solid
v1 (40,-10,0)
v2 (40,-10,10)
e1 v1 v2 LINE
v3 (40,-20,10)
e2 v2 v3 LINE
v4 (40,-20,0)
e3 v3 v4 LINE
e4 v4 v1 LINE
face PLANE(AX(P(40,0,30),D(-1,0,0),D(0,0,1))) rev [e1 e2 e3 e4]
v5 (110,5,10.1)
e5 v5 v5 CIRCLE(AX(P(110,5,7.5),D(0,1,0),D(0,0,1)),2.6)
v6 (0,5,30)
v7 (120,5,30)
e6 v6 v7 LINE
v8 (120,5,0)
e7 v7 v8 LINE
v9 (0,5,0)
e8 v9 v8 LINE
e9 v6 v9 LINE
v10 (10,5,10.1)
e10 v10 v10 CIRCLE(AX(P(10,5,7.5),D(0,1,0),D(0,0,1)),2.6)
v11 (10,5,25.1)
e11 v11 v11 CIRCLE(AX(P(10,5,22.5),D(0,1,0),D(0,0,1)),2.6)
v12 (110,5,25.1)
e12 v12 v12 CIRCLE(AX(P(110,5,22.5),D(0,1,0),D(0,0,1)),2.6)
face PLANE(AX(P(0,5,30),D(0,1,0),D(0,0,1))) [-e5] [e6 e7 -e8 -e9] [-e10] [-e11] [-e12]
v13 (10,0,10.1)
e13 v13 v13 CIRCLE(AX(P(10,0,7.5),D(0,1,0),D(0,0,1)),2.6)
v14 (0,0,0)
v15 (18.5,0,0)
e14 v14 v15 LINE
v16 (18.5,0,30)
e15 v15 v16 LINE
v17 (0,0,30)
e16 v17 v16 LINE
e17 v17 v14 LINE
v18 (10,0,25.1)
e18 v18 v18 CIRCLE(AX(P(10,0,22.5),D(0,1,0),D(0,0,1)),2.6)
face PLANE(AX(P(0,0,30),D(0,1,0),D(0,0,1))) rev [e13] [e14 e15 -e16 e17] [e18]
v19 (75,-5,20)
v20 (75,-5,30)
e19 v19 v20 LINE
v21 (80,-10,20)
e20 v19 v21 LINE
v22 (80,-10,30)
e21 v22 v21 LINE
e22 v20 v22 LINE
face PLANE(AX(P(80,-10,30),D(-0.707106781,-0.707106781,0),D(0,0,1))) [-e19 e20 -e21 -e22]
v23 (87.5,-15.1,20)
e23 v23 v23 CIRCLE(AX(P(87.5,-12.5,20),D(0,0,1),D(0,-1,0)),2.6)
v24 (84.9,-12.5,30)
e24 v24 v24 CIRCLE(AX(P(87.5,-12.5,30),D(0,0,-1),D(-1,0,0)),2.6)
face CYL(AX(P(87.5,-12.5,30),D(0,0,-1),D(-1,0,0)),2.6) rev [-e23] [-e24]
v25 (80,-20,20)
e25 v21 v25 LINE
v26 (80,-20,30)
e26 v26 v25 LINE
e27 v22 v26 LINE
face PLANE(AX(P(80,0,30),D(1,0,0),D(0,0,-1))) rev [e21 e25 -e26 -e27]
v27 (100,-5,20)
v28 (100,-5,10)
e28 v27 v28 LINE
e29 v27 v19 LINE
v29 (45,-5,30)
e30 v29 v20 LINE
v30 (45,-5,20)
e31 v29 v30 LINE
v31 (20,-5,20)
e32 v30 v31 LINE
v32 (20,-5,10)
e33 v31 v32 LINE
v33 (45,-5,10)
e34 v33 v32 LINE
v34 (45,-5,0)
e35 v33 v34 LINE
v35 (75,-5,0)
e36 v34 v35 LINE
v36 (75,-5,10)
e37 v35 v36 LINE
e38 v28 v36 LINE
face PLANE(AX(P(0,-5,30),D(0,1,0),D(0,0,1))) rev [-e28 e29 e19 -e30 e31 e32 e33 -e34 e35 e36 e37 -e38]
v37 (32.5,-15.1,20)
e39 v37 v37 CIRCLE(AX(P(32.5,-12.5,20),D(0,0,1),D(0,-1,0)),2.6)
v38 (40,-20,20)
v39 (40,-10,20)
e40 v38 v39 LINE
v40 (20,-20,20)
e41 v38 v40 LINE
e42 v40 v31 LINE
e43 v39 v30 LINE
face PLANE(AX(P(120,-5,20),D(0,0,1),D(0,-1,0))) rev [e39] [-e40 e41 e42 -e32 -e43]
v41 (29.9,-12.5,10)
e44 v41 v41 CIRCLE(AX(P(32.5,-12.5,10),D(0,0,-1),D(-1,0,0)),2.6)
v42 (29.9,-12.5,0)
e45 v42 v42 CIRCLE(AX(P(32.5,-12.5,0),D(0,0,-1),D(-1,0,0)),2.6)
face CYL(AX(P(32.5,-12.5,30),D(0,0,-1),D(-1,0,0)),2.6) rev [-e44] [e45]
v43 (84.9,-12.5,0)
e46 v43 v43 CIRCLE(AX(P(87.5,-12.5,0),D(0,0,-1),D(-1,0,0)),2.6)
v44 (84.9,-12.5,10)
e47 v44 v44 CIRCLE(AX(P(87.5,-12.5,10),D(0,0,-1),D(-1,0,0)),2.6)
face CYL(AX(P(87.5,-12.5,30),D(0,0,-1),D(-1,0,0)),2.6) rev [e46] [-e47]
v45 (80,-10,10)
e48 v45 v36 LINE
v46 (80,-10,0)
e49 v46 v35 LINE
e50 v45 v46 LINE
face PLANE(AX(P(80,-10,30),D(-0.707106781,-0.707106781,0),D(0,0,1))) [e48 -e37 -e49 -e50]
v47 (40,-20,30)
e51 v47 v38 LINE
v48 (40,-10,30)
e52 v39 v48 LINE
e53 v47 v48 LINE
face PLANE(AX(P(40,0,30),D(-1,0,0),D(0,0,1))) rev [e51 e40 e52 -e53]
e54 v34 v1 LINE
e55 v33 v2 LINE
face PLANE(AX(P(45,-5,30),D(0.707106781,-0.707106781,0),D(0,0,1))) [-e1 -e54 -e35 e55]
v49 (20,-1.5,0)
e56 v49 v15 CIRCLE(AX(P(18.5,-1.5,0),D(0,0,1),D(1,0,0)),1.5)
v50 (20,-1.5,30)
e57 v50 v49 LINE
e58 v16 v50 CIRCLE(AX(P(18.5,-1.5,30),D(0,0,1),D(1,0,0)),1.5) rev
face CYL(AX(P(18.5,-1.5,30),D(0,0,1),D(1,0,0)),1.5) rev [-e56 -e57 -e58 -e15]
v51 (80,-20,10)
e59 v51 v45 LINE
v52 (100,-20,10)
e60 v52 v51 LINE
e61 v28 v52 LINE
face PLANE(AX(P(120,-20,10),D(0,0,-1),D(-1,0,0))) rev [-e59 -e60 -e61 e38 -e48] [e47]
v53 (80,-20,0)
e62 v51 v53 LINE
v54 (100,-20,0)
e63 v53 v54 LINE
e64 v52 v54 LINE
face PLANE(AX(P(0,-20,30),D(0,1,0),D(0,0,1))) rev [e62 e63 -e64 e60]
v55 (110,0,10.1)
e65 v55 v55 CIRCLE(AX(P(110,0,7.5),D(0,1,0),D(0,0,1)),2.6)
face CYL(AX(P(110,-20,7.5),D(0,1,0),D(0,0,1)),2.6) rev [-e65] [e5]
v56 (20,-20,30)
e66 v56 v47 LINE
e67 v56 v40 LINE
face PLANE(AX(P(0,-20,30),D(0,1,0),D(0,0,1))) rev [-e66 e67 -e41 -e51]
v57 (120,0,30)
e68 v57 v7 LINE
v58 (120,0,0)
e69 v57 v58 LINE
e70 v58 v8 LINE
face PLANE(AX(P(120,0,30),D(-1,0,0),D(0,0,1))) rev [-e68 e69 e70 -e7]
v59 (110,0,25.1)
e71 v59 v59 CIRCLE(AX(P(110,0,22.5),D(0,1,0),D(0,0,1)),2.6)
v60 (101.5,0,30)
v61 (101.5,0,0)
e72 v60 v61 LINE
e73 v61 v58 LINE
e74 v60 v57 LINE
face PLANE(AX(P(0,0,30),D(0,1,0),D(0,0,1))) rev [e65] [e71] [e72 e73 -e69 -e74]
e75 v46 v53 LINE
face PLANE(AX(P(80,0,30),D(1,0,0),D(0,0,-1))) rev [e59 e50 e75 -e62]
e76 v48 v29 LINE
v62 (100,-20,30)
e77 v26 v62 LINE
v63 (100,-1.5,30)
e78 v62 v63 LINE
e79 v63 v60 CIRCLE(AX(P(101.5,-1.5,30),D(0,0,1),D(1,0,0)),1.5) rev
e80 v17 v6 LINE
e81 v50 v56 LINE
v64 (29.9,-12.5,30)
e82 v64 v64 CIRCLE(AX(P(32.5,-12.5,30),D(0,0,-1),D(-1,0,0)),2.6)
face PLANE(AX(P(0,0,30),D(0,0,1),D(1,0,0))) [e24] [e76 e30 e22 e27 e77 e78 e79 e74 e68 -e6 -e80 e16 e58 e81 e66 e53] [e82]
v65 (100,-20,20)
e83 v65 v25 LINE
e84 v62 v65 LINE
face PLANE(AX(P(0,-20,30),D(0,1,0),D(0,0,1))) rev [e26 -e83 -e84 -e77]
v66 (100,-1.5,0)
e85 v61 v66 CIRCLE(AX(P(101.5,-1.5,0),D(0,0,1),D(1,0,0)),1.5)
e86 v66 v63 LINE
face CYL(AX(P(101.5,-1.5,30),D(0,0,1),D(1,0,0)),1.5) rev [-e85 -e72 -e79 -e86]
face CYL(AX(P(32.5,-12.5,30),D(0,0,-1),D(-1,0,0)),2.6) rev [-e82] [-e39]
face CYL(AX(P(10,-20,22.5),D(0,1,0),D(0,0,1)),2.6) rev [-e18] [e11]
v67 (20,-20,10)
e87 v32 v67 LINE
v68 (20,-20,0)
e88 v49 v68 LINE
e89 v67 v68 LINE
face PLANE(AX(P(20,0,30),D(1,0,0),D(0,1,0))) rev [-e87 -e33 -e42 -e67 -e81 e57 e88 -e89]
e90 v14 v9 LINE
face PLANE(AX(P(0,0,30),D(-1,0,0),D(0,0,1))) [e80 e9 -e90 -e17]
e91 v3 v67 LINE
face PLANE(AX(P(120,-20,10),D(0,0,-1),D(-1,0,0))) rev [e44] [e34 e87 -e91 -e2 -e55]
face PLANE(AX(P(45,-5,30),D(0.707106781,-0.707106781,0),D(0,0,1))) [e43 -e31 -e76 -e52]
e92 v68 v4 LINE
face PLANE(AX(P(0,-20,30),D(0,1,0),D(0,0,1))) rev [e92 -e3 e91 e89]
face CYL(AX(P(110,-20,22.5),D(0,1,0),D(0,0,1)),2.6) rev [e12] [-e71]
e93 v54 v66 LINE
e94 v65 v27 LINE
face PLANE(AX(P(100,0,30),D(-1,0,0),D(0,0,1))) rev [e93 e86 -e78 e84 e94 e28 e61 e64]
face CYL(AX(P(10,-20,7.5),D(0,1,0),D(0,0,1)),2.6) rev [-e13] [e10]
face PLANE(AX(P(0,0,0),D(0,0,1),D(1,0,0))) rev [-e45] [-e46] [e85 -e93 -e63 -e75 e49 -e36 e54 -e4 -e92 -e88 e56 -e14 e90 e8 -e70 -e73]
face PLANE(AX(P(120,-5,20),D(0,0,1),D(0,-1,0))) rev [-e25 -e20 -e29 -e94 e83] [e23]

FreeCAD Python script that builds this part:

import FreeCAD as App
import Part
import Sketcher


def edges_at(feature, points):
    """Names of the edges that pass closest to the given points."""
    edges = feature.Shape.Edges
    near = lambda p: min(range(len(edges)), key=lambda i: edges[i].distToShape(Part.Vertex(*p))[0])
    return sorted({f"Edge{near(p) + 1}" for p in points})


def add_polygon(sketch, points):
    """Adds a closed chain of lines whose ends are joined by coincident constraints."""
    first, n = sketch.GeometryCount, len(points)
    for a, b in zip(points, points[1:] + points[:1]):
        sketch.addGeometry(Part.LineSegment(App.Vector(*a, 0), App.Vector(*b, 0)), False)
    for i in range(n):
        sketch.addConstraint(Sketcher.Constraint("Coincident", first + i, 2, first + (i + 1) % n, 1))

doc = App.newDocument("Part")
body = doc.addObject("PartDesign::Body", "Body")

# Sketch on XY plane
sketch1 = body.newObject("Sketcher::SketchObject", "Sketch")
sketch1.AttachmentSupport = (doc.getObject("XY_Plane"), [""])
sketch1.MapMode = "FlatFace"
add_polygon(sketch1, [(20, 0), (20, -20), (40, -20), (40, -5), (80, -5), (80, -20), (100, -20), (100, 0), (120, 0), (120, 5), (0, 5), (0, 0)])  # lines 0-11
sketch1.addConstraint(Sketcher.Constraint("Vertical", 0))
sketch1.addConstraint(Sketcher.Constraint("Horizontal", 1))
sketch1.addConstraint(Sketcher.Constraint("Vertical", 2))
sketch1.addConstraint(Sketcher.Constraint("Horizontal", 3))
sketch1.addConstraint(Sketcher.Constraint("Vertical", 4))
sketch1.addConstraint(Sketcher.Constraint("Horizontal", 5))
sketch1.addConstraint(Sketcher.Constraint("Vertical", 6))
sketch1.addConstraint(Sketcher.Constraint("Horizontal", 7))
sketch1.addConstraint(Sketcher.Constraint("Vertical", 8))
sketch1.addConstraint(Sketcher.Constraint("Horizontal", 9))
sketch1.addConstraint(Sketcher.Constraint("Vertical", 10))
sketch1.addConstraint(Sketcher.Constraint("Horizontal", 11))
sketch1.addConstraint(Sketcher.Constraint("Coincident", 10, 2, -1, 1))
sketch1.addConstraint(Sketcher.Constraint("PointOnObject", 6, 2, -1))
sketch1.addConstraint(Sketcher.Constraint("Horizontal", 1, 2, 4, 2))
sketch1.addConstraint(Sketcher.Constraint("Equal", 1, 5))
sketch1.addConstraint(Sketcher.Constraint("Equal", 5, 7))
sketch1.addConstraint(Sketcher.Constraint("Equal", 7, 11))
sketch1.addConstraint(Sketcher.Constraint("Equal", 11, 0))
sketch1.addConstraint(Sketcher.Constraint("DistanceX", 1, 1, 1, 2, 20.0))
sketch1.addConstraint(Sketcher.Constraint("DistanceX", 3, 1, 3, 2, 40.0))
sketch1.addConstraint(Sketcher.Constraint("DistanceY", 2, 1, 2, 2, 15.0))
sketch1.addConstraint(Sketcher.Constraint("DistanceY", 8, 1, 8, 2, 5.0))
pad1 = body.newObject("PartDesign::Pad", "Pad")
pad1.Profile = sketch1
pad1.Length = 30
doc.recompute()

chamfer = body.newObject("PartDesign::Chamfer", "Chamfer")
chamfer.Base = (pad1, edges_at(pad1, [(80, -5, 15), (40, -5, 15)]))
chamfer.Size = 5

# Sketch on XZ plane
sketch2 = body.newObject("Sketcher::SketchObject", "Sketch001")
sketch2.AttachmentSupport = (doc.getObject("XZ_Plane"), [""])
sketch2.MapMode = "FlatFace"
sketch2.AttachmentOffset = App.Placement(App.Vector(0, 0, -5), App.Rotation())
sketch2.addGeometry(Part.Circle(App.Vector(10, 7.5, 0), App.Vector(0, 0, 1), 2.6), False)
sketch2.addGeometry(Part.Circle(App.Vector(10, 22.5, 0), App.Vector(0, 0, 1), 2.6), False)
sketch2.addGeometry(Part.Circle(App.Vector(110, 22.5, 0), App.Vector(0, 0, 1), 2.6), False)
sketch2.addGeometry(Part.Circle(App.Vector(110, 7.5, 0), App.Vector(0, 0, 1), 2.6), False)
sketch2.addConstraint(Sketcher.Constraint("Equal", 0, 1))
sketch2.addConstraint(Sketcher.Constraint("Equal", 1, 2))
sketch2.addConstraint(Sketcher.Constraint("Equal", 2, 3))
sketch2.addConstraint(Sketcher.Constraint("Horizontal", 1, 3, 2, 3))
sketch2.addConstraint(Sketcher.Constraint("Horizontal", 0, 3, 3, 3))
sketch2.addConstraint(Sketcher.Constraint("Vertical", 0, 3, 1, 3))
sketch2.addConstraint(Sketcher.Constraint("Vertical", 2, 3, 3, 3))
sketch2.addConstraint(Sketcher.Constraint("Diameter", 0, 5.2))
sketch2.addConstraint(Sketcher.Constraint("DistanceX", -1, 1, 0, 3, 10.0))
sketch2.addConstraint(Sketcher.Constraint("DistanceX", -1, 1, 2, 3, 110.0))
sketch2.addConstraint(Sketcher.Constraint("DistanceY", 0, 3, 1, 3, 15.0))
sketch2.addConstraint(Sketcher.Constraint("DistanceY", -1, 1, 0, 3, 7.5))
pocket1 = body.newObject("PartDesign::Pocket", "Pocket")
pocket1.Profile = sketch2
pocket1.Type = "ThroughAll"
pocket1.Reversed = True

# Sketch on YZ plane
sketch3 = body.newObject("Sketcher::SketchObject", "Sketch002")
sketch3.AttachmentSupport = (doc.getObject("YZ_Plane"), [""])
sketch3.MapMode = "FlatFace"
sketch3.AttachmentOffset = App.Placement(App.Vector(0, 0, 20), App.Rotation())
add_polygon(sketch3, [(-5, 10), (-20, 10), (-20, 20), (-5, 20)])  # lines 0-3
sketch3.addConstraint(Sketcher.Constraint("Horizontal", 0))
sketch3.addConstraint(Sketcher.Constraint("Vertical", 1))
sketch3.addConstraint(Sketcher.Constraint("Horizontal", 2))
sketch3.addConstraint(Sketcher.Constraint("Vertical", 3))
sketch3.addConstraint(Sketcher.Constraint("DistanceX", 0, 2, 0, 1, 15.0))
sketch3.addConstraint(Sketcher.Constraint("DistanceY", 1, 1, 1, 2, 10.0))
sketch3.addConstraint(Sketcher.Constraint("DistanceX", 0, 2, -1, 1, 20.0))
sketch3.addConstraint(Sketcher.Constraint("DistanceY", -1, 1, 0, 2, 10.0))
pocket2 = body.newObject("PartDesign::Pocket", "Pocket001")
pocket2.Profile = sketch3
pocket2.Type = "ThroughAll"
pocket2.Reversed = True

# Sketch on XY plane
sketch4 = body.newObject("Sketcher::SketchObject", "Sketch003")
sketch4.AttachmentSupport = (doc.getObject("XY_Plane"), [""])
sketch4.MapMode = "FlatFace"
sketch4.addGeometry(Part.Circle(App.Vector(87.5, -12.5, 0), App.Vector(0, 0, 1), 2.6), False)
sketch4.addGeometry(Part.Circle(App.Vector(32.5, -12.5, 0), App.Vector(0, 0, 1), 2.6), False)
sketch4.addConstraint(Sketcher.Constraint("Equal", 0, 1))
sketch4.addConstraint(Sketcher.Constraint("Horizontal", 0, 3, 1, 3))
sketch4.addConstraint(Sketcher.Constraint("Diameter", 0, 5.2))
sketch4.addConstraint(Sketcher.Constraint("DistanceX", 1, 3, 0, 3, 55.0))
sketch4.addConstraint(Sketcher.Constraint("DistanceX", -1, 1, 0, 3, 87.5))
sketch4.addConstraint(Sketcher.Constraint("DistanceY", 0, 3, -1, 1, 12.5))
pocket3 = body.newObject("PartDesign::Pocket", "Pocket002")
pocket3.Profile = sketch4
pocket3.Type = "ThroughAll"
pocket3.Reversed = True
doc.recompute()

fillet = body.newObject("PartDesign::Fillet", "Fillet")
fillet.Base = (pocket3, edges_at(pocket3, [(20, 0, 15), (100, 0, 15)]))
fillet.Radius = 1.5

doc.recompute()
